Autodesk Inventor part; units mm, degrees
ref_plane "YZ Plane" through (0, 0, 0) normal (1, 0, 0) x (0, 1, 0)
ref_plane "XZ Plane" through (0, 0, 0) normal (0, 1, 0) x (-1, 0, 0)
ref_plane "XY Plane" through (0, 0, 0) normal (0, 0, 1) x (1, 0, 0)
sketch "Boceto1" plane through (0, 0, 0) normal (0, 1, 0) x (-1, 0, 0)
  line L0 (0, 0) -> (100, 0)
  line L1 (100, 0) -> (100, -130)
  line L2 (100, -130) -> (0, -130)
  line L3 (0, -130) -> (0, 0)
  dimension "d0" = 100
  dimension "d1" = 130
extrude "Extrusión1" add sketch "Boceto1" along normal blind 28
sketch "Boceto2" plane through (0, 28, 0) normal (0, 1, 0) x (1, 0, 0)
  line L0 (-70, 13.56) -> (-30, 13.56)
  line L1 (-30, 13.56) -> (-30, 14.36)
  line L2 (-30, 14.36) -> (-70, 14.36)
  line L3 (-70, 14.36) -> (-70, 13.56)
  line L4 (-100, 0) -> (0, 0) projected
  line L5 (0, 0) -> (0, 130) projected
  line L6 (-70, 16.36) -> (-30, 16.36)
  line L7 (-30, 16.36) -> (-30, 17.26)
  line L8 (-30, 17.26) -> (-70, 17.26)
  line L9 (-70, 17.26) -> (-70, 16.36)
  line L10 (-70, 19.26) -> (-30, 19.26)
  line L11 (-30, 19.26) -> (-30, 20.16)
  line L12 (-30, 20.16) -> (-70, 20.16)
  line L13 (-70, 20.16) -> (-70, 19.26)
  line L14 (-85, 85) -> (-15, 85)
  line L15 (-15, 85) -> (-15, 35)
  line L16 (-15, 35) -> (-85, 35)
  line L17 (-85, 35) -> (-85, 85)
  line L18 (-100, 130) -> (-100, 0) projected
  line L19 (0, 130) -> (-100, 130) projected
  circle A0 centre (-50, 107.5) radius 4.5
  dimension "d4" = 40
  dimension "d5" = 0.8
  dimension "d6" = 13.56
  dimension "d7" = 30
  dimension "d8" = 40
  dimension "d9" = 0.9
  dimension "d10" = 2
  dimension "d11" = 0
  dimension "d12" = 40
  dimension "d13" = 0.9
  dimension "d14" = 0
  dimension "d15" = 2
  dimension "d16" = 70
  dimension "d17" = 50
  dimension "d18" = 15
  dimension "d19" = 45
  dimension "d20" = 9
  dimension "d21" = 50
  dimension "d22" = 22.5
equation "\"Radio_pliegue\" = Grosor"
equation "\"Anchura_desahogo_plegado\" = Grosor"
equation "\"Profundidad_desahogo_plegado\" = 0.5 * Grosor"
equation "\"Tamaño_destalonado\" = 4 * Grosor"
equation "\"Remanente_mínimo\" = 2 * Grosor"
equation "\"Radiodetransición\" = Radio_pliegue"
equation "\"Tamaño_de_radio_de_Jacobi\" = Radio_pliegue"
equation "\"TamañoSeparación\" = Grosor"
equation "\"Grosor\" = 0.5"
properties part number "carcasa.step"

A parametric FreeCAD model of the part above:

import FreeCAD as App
import Part
import Sketcher

V = App.Vector

doc = App.newDocument("Part")
body = doc.addObject("PartDesign::Body", "Body")

# Sketch on XZ plane
sketch1 = doc.addObject("Sketcher::SketchObject", "Sketch")
body.addObject(sketch1)
sketch1.AttachmentSupport = (doc.XZ_Plane, [""])
sketch1.MapMode = "FlatFace"
sketch1.addGeometry([
    Part.LineSegment(V(-100, 0, 0), V(0, 0, 0)),
    Part.LineSegment(V(0, 0, 0), V(0, -130, 0)),
    Part.LineSegment(V(0, -130, 0), V(-100, -130, 0)),
    Part.LineSegment(V(-100, -130, 0), V(-100, 0, 0)),
], False)
sketch1.addConstraint([
    Sketcher.Constraint("Coincident", 0, 2, 1, 1),
    Sketcher.Constraint("Coincident", 1, 2, 2, 1),
    Sketcher.Constraint("Coincident", 2, 2, 3, 1),
    Sketcher.Constraint("Coincident", 3, 2, 0, 1),
    Sketcher.Constraint("Horizontal", 0),
    Sketcher.Constraint("Vertical", 1),
    Sketcher.Constraint("Horizontal", 2),
    Sketcher.Constraint("Vertical", 3),
    Sketcher.Constraint("Coincident", 0, 2, -1, 1),
    Sketcher.Constraint("DistanceX", 0, 1, 0, 2, 100.0),
    Sketcher.Constraint("DistanceY", 1, 2, 1, 1, 130.0),
])
pad1 = doc.addObject("PartDesign::Pad", "Pad")
body.addObject(pad1)
pad1.Profile = sketch1
pad1.Length = 28
pad1.Reversed = True

doc.recompute()
